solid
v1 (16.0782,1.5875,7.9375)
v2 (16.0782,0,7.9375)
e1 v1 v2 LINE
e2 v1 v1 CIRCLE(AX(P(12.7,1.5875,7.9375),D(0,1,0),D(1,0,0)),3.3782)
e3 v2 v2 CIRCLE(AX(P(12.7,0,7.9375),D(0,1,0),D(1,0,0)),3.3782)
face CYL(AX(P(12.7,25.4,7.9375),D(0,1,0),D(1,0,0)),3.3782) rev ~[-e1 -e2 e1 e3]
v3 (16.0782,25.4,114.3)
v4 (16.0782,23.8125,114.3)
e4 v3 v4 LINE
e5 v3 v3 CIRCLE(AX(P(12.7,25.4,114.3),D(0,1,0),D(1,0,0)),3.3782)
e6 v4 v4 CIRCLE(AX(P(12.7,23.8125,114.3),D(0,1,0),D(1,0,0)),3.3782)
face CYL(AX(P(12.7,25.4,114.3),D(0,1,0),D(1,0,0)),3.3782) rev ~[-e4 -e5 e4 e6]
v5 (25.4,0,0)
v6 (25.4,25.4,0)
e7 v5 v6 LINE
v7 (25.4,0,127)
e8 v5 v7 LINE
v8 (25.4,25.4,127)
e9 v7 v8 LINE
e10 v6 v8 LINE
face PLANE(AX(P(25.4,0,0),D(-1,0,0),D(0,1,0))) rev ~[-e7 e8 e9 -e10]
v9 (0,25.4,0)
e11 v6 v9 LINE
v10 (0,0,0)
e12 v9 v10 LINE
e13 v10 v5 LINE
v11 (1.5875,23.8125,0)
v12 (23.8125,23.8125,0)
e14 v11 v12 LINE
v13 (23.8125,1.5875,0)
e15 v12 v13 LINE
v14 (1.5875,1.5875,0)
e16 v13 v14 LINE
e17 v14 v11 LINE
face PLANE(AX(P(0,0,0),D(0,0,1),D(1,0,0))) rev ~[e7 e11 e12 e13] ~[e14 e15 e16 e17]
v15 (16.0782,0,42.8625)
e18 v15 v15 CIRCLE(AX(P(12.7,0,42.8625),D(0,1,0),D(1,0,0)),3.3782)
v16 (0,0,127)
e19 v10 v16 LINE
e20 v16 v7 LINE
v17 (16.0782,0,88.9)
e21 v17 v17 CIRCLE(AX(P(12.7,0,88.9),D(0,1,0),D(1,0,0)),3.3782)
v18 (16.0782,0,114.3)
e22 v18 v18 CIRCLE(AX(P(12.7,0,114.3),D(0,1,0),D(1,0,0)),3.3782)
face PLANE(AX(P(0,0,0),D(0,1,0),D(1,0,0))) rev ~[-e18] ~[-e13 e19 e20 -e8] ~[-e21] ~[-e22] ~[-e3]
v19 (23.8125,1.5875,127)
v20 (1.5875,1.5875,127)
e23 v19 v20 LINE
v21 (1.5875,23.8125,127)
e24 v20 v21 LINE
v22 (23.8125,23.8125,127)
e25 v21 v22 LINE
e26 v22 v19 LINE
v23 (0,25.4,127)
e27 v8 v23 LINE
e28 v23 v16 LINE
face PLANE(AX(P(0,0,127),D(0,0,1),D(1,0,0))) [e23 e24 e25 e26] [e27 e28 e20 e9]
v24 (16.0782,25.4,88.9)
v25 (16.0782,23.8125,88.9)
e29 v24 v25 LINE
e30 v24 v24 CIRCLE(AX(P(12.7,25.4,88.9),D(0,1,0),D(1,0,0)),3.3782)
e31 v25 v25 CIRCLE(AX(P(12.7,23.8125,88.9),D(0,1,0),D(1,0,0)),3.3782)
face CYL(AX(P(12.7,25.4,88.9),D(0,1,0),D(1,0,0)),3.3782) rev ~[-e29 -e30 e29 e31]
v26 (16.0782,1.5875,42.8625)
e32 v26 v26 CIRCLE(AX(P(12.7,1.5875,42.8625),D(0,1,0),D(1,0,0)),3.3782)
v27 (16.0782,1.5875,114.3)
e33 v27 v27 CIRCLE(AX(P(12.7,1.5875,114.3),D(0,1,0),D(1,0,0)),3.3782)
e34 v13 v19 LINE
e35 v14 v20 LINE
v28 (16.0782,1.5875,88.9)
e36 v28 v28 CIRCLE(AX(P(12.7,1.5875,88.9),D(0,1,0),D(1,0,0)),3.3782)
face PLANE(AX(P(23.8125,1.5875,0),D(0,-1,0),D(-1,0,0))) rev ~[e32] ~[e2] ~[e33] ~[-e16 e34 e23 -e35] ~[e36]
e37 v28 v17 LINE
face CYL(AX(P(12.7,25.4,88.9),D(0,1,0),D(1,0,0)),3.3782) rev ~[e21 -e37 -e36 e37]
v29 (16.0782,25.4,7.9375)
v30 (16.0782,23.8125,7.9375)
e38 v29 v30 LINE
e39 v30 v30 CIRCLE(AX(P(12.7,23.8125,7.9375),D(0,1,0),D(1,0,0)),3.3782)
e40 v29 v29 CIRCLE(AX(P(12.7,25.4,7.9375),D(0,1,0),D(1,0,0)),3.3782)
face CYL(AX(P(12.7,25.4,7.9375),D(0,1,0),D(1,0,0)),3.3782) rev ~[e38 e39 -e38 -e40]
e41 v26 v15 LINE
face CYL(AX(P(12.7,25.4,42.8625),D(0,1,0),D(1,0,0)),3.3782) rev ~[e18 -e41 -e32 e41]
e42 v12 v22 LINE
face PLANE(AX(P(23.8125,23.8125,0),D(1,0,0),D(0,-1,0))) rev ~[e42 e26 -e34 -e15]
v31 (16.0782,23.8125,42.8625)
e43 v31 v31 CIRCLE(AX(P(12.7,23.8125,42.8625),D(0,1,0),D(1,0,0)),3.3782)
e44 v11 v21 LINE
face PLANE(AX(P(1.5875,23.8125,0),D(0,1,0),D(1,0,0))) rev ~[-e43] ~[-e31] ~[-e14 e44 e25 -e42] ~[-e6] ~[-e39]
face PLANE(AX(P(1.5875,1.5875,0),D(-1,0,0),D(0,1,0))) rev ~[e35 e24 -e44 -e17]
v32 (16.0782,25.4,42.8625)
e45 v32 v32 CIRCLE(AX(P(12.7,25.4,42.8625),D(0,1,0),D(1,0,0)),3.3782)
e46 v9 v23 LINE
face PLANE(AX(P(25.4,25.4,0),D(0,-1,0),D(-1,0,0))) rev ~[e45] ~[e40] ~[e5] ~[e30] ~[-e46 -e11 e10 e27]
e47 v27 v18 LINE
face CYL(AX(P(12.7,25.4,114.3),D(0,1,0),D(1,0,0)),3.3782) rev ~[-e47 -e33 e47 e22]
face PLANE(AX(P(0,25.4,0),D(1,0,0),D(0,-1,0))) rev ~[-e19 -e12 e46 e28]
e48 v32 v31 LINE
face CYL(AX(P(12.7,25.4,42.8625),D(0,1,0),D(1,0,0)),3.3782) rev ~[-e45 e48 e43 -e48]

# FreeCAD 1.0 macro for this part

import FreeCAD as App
import Part
import Sketcher
from FreeCAD import Vector
Q = App.Units.Quantity


def add_polygon(sketch, points):
    """Adds a closed chain of lines whose ends are joined by coincident constraints."""
    first, n = sketch.GeometryCount, len(points)
    for a, b in zip(points, points[1:] + points[:1]):
        sketch.addGeometry(Part.LineSegment(App.Vector(*a, 0), App.Vector(*b, 0)), False)
    for i in range(n):
        sketch.addConstraint(Sketcher.Constraint("Coincident", first + i, 2, first + (i + 1) % n, 1))

doc = App.newDocument("Part")
body = doc.addObject("PartDesign::Body", "Body")

# Sketch on XY plane
sketch1 = body.newObject("Sketcher::SketchObject", "Sketch")
sketch1.AttachmentSupport = (doc.getObject("XY_Plane"), [""])
sketch1.MapMode = "FlatFace"
add_polygon(sketch1, [(0, 25), (0, 0), (25, 0), (25, 25)])  # lines 0-3
add_polygon(sketch1, [(2, 2), (2, 24), (24, 24), (24, 2)])  # lines 4-7
sketch1.addConstraint(Sketcher.Constraint("Vertical", 0))
sketch1.addConstraint(Sketcher.Constraint("Horizontal", 1))
sketch1.addConstraint(Sketcher.Constraint("Vertical", 2))
sketch1.addConstraint(Sketcher.Constraint("Horizontal", 3))
sketch1.addConstraint(Sketcher.Constraint("Vertical", 4))
sketch1.addConstraint(Sketcher.Constraint("Horizontal", 5))
sketch1.addConstraint(Sketcher.Constraint("Vertical", 6))
sketch1.addConstraint(Sketcher.Constraint("Horizontal", 7))
sketch1.addConstraint(Sketcher.Constraint("Coincident", 0, 2, -1, 1))
sketch1.addConstraint(Sketcher.Constraint("Equal", 3, 0))
sketch1.addConstraint(Sketcher.Constraint("Equal", 7, 4))
sketch1.addConstraint(Sketcher.Constraint("DistanceX", 1, 1, 1, 2, Q("1 in")))
sketch1.addConstraint(Sketcher.Constraint("DistanceX", -1, 1, 4, 2, Q("0.0625 in")))
sketch1.addConstraint(Sketcher.Constraint("DistanceY", -1, 1, 6, 2, Q("0.0625 in")))
sketch1.addConstraint(Sketcher.Constraint("DistanceY", 4, 2, 3, 2, Q("0.0625 in")))
pad1 = body.newObject("PartDesign::Pad", "Pad")
pad1.Profile = sketch1
pad1.Length = Q("5 in")

# Sketch on XZ plane
sketch2 = body.newObject("Sketcher::SketchObject", "Sketch001")
sketch2.AttachmentSupport = (doc.getObject("XZ_Plane"), [""])
sketch2.MapMode = "FlatFace"
sketch2.AttachmentOffset = App.Placement(Vector(0, 0, -1 * 25.4), App.Rotation())
sketch2.addGeometry(Part.Circle(Vector(12.7, 7.9, 0), Vector(0, 0, 1), 3.4), False)
sketch2.addGeometry(Part.Circle(Vector(12.7, 42.9, 0), Vector(0, 0, 1), 3.4), False)
sketch2.addGeometry(Part.Circle(Vector(12.7, 88.9, 0), Vector(0, 0, 1), 3.4), False)
sketch2.addGeometry(Part.Circle(Vector(12.7, 114.3, 0), Vector(0, 0, 1), 3.4), False)
sketch2.addConstraint(Sketcher.Constraint("Equal", 0, 1))
sketch2.addConstraint(Sketcher.Constraint("Equal", 1, 2))
sketch2.addConstraint(Sketcher.Constraint("Equal", 2, 3))
sketch2.addConstraint(Sketcher.Constraint("Vertical", 0, 3, 1, 3))
sketch2.addConstraint(Sketcher.Constraint("Vertical", 1, 3, 2, 3))
sketch2.addConstraint(Sketcher.Constraint("Vertical", 2, 3, 3, 3))
sketch2.addConstraint(Sketcher.Constraint("Diameter", 0, Q("0.266 in")))
sketch2.addConstraint(Sketcher.Constraint("DistanceY", 2, 3, 3, 3, Q("1 in")))
sketch2.addConstraint(Sketcher.Constraint("DistanceX", -1, 1, 0, 3, Q("0.5 in")))
sketch2.addConstraint(Sketcher.Constraint("DistanceY", -1, 1, 0, 3, Q("0.3125 in")))
sketch2.addConstraint(Sketcher.Constraint("DistanceY", 0, 3, 1, 3, Q("1.375 in")))
sketch2.addConstraint(Sketcher.Constraint("DistanceY", 1, 3, 2, 3, Q("1.8125 in")))
pocket1 = body.newObject("PartDesign::Pocket", "Pocket")
pocket1.Profile = sketch2
pocket1.Length = Q("4 in")
pocket1.Reversed = True

doc.recompute()
